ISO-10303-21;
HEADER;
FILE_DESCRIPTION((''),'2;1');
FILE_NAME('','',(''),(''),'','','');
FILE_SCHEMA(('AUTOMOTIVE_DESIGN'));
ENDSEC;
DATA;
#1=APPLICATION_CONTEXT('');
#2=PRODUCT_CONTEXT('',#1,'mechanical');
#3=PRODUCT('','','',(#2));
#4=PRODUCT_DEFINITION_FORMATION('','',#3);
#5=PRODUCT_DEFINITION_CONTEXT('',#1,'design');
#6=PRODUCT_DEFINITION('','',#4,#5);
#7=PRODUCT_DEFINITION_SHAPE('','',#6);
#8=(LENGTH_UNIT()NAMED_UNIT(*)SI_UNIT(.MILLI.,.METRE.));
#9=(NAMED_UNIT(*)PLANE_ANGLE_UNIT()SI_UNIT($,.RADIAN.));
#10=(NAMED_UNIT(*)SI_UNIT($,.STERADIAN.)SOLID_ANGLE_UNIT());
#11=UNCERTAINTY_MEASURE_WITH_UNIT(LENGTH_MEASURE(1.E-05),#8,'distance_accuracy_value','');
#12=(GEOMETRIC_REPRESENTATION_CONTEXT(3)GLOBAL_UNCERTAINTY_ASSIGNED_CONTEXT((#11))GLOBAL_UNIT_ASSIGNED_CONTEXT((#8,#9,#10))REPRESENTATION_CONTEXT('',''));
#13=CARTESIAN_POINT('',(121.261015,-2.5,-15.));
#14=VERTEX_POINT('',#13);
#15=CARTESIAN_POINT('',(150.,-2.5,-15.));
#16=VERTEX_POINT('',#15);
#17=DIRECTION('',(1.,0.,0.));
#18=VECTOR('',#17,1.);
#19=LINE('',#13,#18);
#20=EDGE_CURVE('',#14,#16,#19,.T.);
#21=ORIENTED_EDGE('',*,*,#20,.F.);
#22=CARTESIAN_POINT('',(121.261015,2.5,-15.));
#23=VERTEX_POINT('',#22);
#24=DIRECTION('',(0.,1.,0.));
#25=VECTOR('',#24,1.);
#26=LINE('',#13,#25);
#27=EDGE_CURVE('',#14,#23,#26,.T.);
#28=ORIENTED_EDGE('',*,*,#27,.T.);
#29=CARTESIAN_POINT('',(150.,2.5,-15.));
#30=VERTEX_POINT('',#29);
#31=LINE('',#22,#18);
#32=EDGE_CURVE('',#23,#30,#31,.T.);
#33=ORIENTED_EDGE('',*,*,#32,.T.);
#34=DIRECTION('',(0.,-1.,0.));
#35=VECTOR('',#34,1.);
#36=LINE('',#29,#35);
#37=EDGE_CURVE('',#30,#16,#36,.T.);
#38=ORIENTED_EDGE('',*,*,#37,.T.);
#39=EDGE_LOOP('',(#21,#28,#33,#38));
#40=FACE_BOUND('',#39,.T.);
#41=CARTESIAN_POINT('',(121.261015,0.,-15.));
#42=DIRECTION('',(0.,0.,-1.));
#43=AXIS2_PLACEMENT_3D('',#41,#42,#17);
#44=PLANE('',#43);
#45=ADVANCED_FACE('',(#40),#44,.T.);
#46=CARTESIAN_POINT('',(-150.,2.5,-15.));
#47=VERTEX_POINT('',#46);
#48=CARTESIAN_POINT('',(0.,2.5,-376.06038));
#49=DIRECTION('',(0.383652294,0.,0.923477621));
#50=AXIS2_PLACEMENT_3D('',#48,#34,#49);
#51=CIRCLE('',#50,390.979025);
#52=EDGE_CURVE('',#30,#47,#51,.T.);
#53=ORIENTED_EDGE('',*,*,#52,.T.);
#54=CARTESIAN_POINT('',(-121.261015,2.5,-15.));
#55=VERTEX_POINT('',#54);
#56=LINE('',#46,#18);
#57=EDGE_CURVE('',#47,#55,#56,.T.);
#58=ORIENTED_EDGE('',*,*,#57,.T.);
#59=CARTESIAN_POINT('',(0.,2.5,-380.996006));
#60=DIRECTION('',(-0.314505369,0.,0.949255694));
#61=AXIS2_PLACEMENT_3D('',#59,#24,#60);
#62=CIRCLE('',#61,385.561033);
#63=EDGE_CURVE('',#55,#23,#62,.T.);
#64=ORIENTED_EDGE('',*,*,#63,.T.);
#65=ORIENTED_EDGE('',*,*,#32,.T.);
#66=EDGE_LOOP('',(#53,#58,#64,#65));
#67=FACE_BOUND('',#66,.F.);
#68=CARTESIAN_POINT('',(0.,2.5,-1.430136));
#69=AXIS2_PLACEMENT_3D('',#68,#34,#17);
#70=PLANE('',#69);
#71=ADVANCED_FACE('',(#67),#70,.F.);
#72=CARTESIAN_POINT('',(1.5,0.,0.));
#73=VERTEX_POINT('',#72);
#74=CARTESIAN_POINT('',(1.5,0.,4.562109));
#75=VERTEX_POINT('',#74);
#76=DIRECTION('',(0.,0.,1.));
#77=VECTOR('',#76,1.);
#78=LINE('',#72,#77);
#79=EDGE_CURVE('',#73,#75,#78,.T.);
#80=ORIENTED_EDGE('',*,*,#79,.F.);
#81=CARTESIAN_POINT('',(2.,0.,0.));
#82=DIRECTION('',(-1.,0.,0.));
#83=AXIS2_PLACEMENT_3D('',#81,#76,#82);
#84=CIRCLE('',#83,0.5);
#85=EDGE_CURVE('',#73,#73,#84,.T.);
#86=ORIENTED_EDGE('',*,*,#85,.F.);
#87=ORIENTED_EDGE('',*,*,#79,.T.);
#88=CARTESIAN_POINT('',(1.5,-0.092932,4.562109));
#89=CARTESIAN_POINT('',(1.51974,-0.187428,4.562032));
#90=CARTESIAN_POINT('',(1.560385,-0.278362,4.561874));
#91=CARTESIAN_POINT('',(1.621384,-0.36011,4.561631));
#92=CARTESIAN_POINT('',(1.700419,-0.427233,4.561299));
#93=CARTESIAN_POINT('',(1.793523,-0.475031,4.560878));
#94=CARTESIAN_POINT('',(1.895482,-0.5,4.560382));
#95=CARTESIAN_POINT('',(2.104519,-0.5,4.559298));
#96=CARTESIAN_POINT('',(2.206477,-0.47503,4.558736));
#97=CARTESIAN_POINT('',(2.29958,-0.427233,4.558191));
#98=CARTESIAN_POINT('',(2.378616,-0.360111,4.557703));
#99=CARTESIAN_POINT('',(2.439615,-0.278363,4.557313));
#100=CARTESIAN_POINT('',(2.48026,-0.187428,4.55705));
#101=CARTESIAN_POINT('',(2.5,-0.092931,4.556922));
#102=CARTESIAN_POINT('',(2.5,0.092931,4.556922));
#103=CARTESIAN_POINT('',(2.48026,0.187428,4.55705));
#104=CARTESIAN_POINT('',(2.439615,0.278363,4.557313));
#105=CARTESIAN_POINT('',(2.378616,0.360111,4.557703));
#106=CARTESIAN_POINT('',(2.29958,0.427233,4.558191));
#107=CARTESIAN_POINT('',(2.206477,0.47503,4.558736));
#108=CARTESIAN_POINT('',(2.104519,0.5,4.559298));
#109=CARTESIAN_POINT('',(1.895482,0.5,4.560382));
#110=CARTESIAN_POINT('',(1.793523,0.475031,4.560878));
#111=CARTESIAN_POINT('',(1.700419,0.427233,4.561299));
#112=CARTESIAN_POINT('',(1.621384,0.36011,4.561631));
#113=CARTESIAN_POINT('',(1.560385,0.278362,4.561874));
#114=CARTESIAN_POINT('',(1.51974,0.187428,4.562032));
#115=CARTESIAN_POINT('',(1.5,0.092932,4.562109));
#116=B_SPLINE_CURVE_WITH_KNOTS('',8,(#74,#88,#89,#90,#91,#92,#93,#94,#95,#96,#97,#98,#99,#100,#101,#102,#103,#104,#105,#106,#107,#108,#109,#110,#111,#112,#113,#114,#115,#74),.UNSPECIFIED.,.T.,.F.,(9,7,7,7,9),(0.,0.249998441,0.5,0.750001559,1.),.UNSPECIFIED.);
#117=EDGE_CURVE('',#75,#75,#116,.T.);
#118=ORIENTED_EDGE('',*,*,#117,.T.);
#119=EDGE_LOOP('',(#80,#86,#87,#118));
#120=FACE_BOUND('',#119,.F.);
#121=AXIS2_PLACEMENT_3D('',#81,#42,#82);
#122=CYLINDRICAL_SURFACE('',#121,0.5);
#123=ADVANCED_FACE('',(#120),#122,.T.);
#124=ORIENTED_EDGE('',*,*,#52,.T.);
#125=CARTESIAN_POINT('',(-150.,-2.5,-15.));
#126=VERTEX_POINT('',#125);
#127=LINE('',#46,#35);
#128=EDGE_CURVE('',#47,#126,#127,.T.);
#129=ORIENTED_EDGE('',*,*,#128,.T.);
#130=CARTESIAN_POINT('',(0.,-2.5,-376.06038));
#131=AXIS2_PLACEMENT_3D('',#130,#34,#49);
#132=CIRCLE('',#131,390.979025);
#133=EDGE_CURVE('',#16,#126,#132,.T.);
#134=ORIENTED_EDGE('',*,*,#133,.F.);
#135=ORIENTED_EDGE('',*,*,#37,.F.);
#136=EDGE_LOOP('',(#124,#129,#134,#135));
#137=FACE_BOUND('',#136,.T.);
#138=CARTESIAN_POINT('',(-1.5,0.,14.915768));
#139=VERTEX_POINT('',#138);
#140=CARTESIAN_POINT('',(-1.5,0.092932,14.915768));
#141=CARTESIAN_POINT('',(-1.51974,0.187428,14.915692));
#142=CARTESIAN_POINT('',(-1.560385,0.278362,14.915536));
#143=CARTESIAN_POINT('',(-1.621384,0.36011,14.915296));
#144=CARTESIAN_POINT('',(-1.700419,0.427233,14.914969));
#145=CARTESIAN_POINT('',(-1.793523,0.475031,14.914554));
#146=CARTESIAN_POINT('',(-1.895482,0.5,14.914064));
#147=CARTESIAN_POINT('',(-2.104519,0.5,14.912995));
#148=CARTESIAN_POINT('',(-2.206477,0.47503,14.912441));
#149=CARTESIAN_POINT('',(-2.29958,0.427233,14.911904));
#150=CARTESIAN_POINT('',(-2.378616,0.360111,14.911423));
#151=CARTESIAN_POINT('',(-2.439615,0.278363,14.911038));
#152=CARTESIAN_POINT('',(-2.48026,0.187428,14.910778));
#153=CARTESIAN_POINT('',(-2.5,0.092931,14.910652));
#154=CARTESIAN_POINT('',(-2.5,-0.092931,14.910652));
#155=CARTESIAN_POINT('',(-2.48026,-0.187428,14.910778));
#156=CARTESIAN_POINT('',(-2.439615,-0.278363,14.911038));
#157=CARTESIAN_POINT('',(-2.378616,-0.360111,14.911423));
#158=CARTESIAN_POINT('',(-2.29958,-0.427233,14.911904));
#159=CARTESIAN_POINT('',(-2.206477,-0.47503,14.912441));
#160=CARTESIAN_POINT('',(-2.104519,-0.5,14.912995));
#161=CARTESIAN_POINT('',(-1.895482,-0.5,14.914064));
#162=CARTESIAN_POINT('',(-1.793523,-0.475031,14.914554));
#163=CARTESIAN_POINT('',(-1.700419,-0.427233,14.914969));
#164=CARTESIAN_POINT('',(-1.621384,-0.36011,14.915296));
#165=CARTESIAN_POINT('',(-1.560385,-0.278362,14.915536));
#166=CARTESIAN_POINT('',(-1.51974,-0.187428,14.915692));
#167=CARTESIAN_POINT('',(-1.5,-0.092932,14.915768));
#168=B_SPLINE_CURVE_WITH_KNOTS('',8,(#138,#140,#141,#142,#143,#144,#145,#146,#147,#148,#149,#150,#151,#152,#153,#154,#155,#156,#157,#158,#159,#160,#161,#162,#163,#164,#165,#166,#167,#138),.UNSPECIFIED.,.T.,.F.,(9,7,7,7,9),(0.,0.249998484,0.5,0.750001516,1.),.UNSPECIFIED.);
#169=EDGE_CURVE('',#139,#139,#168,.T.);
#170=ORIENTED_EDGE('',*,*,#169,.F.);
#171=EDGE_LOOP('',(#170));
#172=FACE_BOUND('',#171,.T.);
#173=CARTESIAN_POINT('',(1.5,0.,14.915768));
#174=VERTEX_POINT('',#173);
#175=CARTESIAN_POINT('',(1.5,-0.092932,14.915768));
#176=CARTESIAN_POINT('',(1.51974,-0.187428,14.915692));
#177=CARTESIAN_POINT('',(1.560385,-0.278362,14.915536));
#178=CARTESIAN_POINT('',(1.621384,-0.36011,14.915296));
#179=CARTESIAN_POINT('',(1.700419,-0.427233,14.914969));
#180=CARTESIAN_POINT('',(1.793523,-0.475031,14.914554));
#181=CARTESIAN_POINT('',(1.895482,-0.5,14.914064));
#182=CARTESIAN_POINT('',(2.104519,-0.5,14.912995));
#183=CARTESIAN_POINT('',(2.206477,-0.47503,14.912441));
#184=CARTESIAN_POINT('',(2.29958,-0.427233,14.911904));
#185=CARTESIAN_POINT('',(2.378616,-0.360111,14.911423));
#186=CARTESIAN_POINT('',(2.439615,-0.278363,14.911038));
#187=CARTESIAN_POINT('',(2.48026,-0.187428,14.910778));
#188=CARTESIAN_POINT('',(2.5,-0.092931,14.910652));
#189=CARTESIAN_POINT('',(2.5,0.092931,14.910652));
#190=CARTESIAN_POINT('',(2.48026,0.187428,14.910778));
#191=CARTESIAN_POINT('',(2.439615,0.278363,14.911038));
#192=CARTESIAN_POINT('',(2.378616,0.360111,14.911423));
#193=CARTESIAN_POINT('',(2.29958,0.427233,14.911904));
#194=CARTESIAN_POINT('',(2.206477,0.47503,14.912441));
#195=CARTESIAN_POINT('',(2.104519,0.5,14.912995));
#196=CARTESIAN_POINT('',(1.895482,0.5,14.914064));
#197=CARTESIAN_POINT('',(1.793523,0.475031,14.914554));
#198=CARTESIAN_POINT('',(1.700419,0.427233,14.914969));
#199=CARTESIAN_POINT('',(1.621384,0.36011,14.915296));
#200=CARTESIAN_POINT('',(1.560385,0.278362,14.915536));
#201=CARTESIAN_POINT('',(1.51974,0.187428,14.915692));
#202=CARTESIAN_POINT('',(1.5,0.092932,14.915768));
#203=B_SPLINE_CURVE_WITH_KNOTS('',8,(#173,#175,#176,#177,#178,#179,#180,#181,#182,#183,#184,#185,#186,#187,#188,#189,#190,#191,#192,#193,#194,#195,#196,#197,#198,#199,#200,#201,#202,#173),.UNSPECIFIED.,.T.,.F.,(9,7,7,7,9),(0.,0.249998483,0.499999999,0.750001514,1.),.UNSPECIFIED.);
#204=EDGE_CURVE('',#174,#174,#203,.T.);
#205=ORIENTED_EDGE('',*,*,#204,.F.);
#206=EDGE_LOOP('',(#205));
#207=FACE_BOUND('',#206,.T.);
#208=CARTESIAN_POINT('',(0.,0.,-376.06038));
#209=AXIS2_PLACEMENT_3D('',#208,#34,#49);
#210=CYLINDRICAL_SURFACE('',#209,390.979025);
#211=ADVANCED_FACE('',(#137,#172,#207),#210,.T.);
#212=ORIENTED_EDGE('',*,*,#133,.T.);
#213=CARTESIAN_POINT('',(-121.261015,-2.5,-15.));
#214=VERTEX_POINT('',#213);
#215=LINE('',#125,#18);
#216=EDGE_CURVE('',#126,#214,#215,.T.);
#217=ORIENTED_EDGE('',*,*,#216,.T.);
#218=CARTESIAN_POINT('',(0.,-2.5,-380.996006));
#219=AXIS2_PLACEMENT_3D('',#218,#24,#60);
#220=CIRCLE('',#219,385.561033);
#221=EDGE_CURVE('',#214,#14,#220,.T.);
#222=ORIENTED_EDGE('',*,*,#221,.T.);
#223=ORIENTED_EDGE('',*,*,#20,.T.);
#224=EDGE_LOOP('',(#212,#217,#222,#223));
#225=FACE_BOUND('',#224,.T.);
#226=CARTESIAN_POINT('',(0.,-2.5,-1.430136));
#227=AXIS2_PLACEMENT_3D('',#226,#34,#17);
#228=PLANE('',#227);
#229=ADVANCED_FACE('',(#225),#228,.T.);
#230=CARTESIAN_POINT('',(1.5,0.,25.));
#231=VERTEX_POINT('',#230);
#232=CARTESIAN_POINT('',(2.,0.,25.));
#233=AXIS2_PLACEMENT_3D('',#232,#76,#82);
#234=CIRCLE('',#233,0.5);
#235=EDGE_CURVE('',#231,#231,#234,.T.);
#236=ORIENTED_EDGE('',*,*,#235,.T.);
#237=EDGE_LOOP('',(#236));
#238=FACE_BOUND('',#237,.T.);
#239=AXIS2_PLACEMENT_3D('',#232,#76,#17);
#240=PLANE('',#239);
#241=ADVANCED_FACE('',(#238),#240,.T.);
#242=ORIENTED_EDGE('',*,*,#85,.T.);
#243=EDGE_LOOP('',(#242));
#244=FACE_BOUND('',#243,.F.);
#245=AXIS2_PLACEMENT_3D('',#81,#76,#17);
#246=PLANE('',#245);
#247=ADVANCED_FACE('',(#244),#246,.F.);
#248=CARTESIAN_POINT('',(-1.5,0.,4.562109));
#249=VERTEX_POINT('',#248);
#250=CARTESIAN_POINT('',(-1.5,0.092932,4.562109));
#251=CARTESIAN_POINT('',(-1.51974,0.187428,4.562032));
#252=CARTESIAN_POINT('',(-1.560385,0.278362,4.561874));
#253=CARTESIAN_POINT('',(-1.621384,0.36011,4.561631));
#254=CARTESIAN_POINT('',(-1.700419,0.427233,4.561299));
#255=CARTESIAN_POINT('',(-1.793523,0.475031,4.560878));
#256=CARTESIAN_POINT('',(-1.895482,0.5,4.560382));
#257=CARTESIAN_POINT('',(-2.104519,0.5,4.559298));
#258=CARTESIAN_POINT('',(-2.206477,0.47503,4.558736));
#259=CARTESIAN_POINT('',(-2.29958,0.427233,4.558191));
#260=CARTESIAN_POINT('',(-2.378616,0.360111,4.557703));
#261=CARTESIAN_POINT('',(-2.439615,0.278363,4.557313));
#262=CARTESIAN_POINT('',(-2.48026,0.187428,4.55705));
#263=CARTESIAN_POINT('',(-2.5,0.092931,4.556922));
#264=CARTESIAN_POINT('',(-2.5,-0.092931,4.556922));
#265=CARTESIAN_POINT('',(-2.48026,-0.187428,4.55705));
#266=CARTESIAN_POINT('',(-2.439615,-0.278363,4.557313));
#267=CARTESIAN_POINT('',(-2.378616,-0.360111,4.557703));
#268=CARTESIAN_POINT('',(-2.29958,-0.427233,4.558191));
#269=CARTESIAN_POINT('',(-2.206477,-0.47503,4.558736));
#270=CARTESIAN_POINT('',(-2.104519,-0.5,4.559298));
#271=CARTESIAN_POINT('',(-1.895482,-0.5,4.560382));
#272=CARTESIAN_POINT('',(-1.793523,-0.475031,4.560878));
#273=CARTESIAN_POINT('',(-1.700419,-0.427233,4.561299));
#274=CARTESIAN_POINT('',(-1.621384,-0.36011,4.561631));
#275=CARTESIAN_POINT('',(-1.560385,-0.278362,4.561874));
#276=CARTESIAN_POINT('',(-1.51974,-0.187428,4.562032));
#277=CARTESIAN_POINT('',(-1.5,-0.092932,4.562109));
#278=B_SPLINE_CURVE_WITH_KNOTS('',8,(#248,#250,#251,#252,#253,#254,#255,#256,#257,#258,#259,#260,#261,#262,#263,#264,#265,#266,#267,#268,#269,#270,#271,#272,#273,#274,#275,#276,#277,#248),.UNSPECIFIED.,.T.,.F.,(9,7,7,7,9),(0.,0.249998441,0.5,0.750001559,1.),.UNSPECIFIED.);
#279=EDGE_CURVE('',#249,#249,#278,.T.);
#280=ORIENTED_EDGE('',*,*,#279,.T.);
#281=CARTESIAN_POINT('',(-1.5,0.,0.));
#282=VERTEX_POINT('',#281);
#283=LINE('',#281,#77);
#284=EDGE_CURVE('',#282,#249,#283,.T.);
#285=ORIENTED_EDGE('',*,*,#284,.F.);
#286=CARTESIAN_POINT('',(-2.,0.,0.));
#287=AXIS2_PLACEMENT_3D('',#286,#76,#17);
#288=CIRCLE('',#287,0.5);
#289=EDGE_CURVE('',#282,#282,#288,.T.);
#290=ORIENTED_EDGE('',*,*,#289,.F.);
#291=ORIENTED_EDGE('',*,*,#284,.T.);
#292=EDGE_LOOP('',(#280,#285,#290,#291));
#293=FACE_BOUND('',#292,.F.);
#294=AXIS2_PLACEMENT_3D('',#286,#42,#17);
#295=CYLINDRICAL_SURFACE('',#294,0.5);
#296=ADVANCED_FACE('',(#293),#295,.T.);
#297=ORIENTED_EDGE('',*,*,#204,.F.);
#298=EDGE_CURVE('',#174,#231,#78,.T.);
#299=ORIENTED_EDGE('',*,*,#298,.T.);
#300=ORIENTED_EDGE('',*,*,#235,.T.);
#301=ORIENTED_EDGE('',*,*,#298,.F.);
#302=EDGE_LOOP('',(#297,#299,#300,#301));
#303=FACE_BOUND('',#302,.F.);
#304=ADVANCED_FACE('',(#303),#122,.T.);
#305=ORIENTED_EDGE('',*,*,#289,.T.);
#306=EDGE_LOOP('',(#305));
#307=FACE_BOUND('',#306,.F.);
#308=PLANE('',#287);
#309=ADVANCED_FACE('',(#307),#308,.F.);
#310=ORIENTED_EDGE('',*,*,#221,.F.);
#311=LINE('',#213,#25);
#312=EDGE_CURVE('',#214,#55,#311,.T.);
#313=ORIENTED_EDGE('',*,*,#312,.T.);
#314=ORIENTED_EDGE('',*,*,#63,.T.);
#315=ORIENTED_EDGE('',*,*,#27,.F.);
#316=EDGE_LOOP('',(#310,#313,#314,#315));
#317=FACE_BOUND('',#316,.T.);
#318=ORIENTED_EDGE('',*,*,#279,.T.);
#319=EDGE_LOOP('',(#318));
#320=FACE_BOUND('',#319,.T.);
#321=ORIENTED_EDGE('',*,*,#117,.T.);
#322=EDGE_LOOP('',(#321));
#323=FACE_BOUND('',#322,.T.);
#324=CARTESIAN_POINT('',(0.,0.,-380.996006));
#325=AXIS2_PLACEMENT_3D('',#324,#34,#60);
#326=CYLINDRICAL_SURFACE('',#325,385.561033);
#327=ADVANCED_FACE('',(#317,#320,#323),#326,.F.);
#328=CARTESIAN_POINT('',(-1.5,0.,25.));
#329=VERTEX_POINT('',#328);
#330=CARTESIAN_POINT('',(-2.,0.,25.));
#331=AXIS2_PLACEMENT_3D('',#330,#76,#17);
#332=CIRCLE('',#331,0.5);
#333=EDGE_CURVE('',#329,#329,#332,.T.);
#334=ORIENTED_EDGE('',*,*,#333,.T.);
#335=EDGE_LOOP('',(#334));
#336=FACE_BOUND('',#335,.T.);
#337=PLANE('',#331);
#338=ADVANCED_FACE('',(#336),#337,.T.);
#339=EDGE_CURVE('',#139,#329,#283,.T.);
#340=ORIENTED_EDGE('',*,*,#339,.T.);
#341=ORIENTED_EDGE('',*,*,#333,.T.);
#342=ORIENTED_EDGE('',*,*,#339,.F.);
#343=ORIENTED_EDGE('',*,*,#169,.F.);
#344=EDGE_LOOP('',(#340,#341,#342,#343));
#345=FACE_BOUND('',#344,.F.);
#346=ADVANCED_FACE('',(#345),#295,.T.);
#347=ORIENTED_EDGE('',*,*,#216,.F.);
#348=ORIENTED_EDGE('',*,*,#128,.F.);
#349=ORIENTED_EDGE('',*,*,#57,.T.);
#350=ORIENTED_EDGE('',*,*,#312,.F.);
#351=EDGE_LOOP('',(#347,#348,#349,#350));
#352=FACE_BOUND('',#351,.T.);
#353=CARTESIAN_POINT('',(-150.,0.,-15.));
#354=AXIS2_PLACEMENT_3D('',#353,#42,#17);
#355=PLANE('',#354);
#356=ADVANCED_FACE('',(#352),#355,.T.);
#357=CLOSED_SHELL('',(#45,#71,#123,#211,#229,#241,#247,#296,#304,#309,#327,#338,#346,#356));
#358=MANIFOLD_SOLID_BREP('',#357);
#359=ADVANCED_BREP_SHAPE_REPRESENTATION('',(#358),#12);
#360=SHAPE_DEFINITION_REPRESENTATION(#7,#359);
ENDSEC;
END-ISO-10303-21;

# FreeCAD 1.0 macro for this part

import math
import FreeCAD as App
import Part
import Sketcher
from FreeCAD import Vector

doc = App.newDocument("Part")
body = doc.addObject("PartDesign::Body", "Body")

sketch1 = body.newObject("Sketcher::SketchObject", "Sketch")
sketch1.AttachmentSupport = (doc.getObject("XZ_Plane"), [""])
sketch1.MapMode = "FlatFace"
sketch1.addGeometry(Part.LineSegment(Vector(121, -15, 0), Vector(150, -15, 0)), False)
sketch1.addGeometry(Part.ArcOfCircle(Part.Circle(Vector(0, -376, 0), Vector(0, 0, 1), 391), math.radians(67), math.radians(113)), False)
sketch1.addGeometry(Part.LineSegment(Vector(-150, -15, 0), Vector(-121, -15, 0)), False)
sketch1.addGeometry(Part.ArcOfCircle(Part.Circle(Vector(0, -381, 0), Vector(0, 0, 1), 386), math.radians(72), math.radians(108)), False)
sketch1.addConstraint(Sketcher.Constraint("Coincident", 0, 2, 1, 1))
sketch1.addConstraint(Sketcher.Constraint("Coincident", 1, 2, 2, 1))
sketch1.addConstraint(Sketcher.Constraint("Coincident", 2, 2, 3, 2))
sketch1.addConstraint(Sketcher.Constraint("Coincident", 3, 1, 0, 1))
sketch1.addConstraint(Sketcher.Constraint("Horizontal", 0))
sketch1.addConstraint(Sketcher.Constraint("Horizontal", 2))
sketch1.addConstraint(Sketcher.Constraint("Symmetric", 0, 2, 1, 2, -2))
sketch1.addConstraint(Sketcher.Constraint("PointOnObject", 3, 3, -2))
sketch1.addConstraint(Sketcher.Constraint("DistanceX", -1, 1, 0, 2, 150.0))
sketch1.addConstraint(Sketcher.Constraint("DistanceY", 0, 2, -1, 1, 15.0))
sketch1.addConstraint(Sketcher.Constraint("Radius", 1, 390.979025))
sketch1.addConstraint(Sketcher.Constraint("Radius", 3, 385.561033))
sketch1.addConstraint(Sketcher.Constraint("DistanceX", 0, 1, 0, 2, 28.738985))
pad1 = body.newObject("PartDesign::Pad", "Pad")
pad1.Profile = sketch1
pad1.Length = 5
pad1.Midplane = True

sketch2 = body.newObject("Sketcher::SketchObject", "Sketch001")
sketch2.AttachmentSupport = (doc.getObject("XY_Plane"), [""])
sketch2.MapMode = "FlatFace"
sketch2.addGeometry(Part.Circle(Vector(-2, 0, 0), Vector(0, 0, 1), 0.5), False)
sketch2.addGeometry(Part.Circle(Vector(2, 0, 0), Vector(0, 0, 1), 0.5), False)
sketch2.addConstraint(Sketcher.Constraint("Equal", 0, 1))
sketch2.addConstraint(Sketcher.Constraint("Symmetric", 0, 3, 1, 3, -1, 1))
sketch2.addConstraint(Sketcher.Constraint("PointOnObject", 0, 3, -1))
sketch2.addConstraint(Sketcher.Constraint("Diameter", 0, 1.0))
sketch2.addConstraint(Sketcher.Constraint("DistanceX", 0, 3, -1, 1, 2.0))
pad2 = body.newObject("PartDesign::Pad", "Pad001")
pad2.Profile = sketch2
pad2.Length = 25

doc.recompute()
